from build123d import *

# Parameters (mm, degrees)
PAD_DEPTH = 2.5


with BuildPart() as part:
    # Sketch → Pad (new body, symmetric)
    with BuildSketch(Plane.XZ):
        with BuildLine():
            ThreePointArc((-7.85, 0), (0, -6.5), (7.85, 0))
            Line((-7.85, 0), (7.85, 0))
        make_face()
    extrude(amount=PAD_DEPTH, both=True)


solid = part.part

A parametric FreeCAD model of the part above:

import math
import FreeCAD as App
import Part
import Sketcher

doc = App.newDocument("Part")
params = doc.addObject("Spreadsheet::Sheet", "Params")
for row, (alias, value) in enumerate([
    ("sketch1_width", "15.7 mm"),
    ("pad1_length", "5 mm"),
], start=1):
    params.set(f"A{row}", alias)
    params.set(f"B{row}", "=" + value)
    params.setAlias(f"B{row}", alias)

body = doc.addObject("PartDesign::Body", "Body")

# Sketch on XZ plane
sketch1 = doc.addObject("Sketcher::SketchObject", "Sketch")
body.addObject(sketch1)
sketch1.AttachmentSupport = (doc.XZ_Plane, [""])
sketch1.MapMode = "FlatFace"
sketch1.addGeometry(Part.ArcOfCircle(Part.Circle(App.Vector(0, 1, 0), App.Vector(0, 0, 1), 8), math.radians(-169), math.radians(-11)), False)
sketch1.addGeometry(Part.LineSegment(App.Vector(8, 0, 0), App.Vector(-8, 0, 0)), False)
sketch1.addConstraint(Sketcher.Constraint("Coincident", 0, 1, 1, 2))
sketch1.addConstraint(Sketcher.Constraint("Coincident", 1, 1, 0, 2))
sketch1.addConstraint(Sketcher.Constraint("Horizontal", 1))
sketch1.addConstraint(Sketcher.Constraint("Symmetric", 0, 1, 1, 1, -1, 1))
sketch1.addConstraint(Sketcher.Constraint("DistanceX", 1, 2, 1, 1, 15.7))
sketch1.addConstraint(Sketcher.Constraint("Radius", 0, 7.990192))
sketch1.setExpression("Constraints[4]", "Params.sketch1_width")
pad1 = doc.addObject("PartDesign::Pad", "Pad")
body.addObject(pad1)
pad1.Profile = sketch1
pad1.setExpression("Length", "Params.pad1_length")
pad1.Midplane = True

doc.recompute()
